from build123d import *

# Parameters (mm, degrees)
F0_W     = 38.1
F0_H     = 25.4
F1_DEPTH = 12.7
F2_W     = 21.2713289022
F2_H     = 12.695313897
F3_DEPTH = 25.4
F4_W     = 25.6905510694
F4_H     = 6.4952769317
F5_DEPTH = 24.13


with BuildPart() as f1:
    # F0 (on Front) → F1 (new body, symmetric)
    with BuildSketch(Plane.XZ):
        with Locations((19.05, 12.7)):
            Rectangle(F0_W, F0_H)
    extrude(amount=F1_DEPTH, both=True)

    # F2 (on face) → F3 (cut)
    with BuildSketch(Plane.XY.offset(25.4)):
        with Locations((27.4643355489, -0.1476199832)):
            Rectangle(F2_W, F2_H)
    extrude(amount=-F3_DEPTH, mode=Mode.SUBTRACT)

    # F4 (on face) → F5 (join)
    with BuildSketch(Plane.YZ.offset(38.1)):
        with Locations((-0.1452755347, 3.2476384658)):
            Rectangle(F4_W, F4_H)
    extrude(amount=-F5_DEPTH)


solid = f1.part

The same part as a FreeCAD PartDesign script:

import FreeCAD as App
import Part
import Sketcher
from FreeCAD import Vector
Q = App.Units.Quantity

doc = App.newDocument("Part")
body = doc.addObject("PartDesign::Body", "Body")

sketch1 = body.newObject("Sketcher::SketchObject", "Sketch")
sketch1.AttachmentSupport = (doc.getObject("XZ_Plane"), [""])
sketch1.MapMode = "FlatFace"
sketch1.addGeometry([
    Part.LineSegment(Vector(0, 25.4, 0), Vector(0, 0, 0)),
    Part.LineSegment(Vector(0, 0, 0), Vector(38.1, 0, 0)),
    Part.LineSegment(Vector(38.1, 0, 0), Vector(38.1, 25.4, 0)),
    Part.LineSegment(Vector(38.1, 25.4, 0), Vector(0, 25.4, 0)),
], False)
sketch1.addConstraint([
    Sketcher.Constraint("Coincident", 0, 2, 1, 1),
    Sketcher.Constraint("Coincident", 1, 2, 2, 1),
    Sketcher.Constraint("Coincident", 2, 2, 3, 1),
    Sketcher.Constraint("Coincident", 3, 2, 0, 1),
    Sketcher.Constraint("Vertical", 0),
    Sketcher.Constraint("Horizontal", 1),
    Sketcher.Constraint("Vertical", 2),
    Sketcher.Constraint("Horizontal", 3),
    Sketcher.Constraint("Coincident", 0, 2, -1, 1),
    Sketcher.Constraint("DistanceY", 0, 2, 0, 1, Q("1 in")),
    Sketcher.Constraint("DistanceX", 1, 1, 1, 2, Q("1.5 in")),
])
pad1 = body.newObject("PartDesign::Pad", "Pad")
pad1.Profile = sketch1
pad1.Length = Q("1 in")
pad1.Midplane = True

sketch2 = body.newObject("Sketcher::SketchObject", "Sketch001")
sketch2.AttachmentSupport = (doc.getObject("XY_Plane"), [""])
sketch2.MapMode = "FlatFace"
sketch2.AttachmentOffset = App.Placement(Vector(0, 0, 1 * 25.4), App.Rotation())
sketch2.addGeometry([
    Part.LineSegment(Vector(16.828671, 6.200037, 0), Vector(16.828671, -6.495277, 0)),
    Part.LineSegment(Vector(16.828671, -6.495277, 0), Vector(38.1, -6.495277, 0)),
    Part.LineSegment(Vector(38.1, -6.495277, 0), Vector(38.1, 6.200037, 0)),
    Part.LineSegment(Vector(38.1, 6.200037, 0), Vector(16.828671, 6.200037, 0)),
], False)
sketch2.addConstraint([
    Sketcher.Constraint("Coincident", 0, 2, 1, 1),
    Sketcher.Constraint("Coincident", 1, 2, 2, 1),
    Sketcher.Constraint("Coincident", 2, 2, 3, 1),
    Sketcher.Constraint("Coincident", 3, 2, 0, 1),
    Sketcher.Constraint("Vertical", 0),
    Sketcher.Constraint("Horizontal", 1),
    Sketcher.Constraint("Vertical", 2),
    Sketcher.Constraint("Horizontal", 3),
    Sketcher.Constraint("DistanceX", -1, 1, 1, 2, Q("1.5 in")),
    Sketcher.Constraint("DistanceX", 1, 1, 1, 2, Q("21.271329 mm")),
    Sketcher.Constraint("DistanceY", 0, 2, 0, 1, Q("12.695314 mm")),
    Sketcher.Constraint("DistanceY", 0, 2, -1, 1, Q("6.495277 mm")),
])
pocket1 = body.newObject("PartDesign::Pocket", "Pocket")
pocket1.Profile = sketch2
pocket1.Length = Q("1 in")

sketch3 = body.newObject("Sketcher::SketchObject", "Sketch002")
sketch3.AttachmentSupport = (doc.getObject("YZ_Plane"), [""])
sketch3.MapMode = "FlatFace"
sketch3.AttachmentOffset = App.Placement(Vector(0, 0, 1.5 * 25.4), App.Rotation())
sketch3.addGeometry([
    Part.LineSegment(Vector(-12.990551, 6.495277, 0), Vector(-12.990551, 0, 0)),
    Part.LineSegment(Vector(-12.990551, 0, 0), Vector(12.7, 0, 0)),
    Part.LineSegment(Vector(12.7, 0, 0), Vector(12.7, 6.495277, 0)),
    Part.LineSegment(Vector(12.7, 6.495277, 0), Vector(-12.990551, 6.495277, 0)),
], False)
sketch3.addConstraint([
    Sketcher.Constraint("Coincident", 0, 2, 1, 1),
    Sketcher.Constraint("Coincident", 1, 2, 2, 1),
    Sketcher.Constraint("Coincident", 2, 2, 3, 1),
    Sketcher.Constraint("Coincident", 3, 2, 0, 1),
    Sketcher.Constraint("Vertical", 0),
    Sketcher.Constraint("Horizontal", 1),
    Sketcher.Constraint("Vertical", 2),
    Sketcher.Constraint("Horizontal", 3),
    Sketcher.Constraint("PointOnObject", 0, 2, -1),
    Sketcher.Constraint("DistanceX", -1, 1, 1, 2, Q("0.5 in")),
    Sketcher.Constraint("DistanceX", 1, 1, 1, 2, Q("25.690551 mm")),
    Sketcher.Constraint("DistanceY", 0, 2, 0, 1, Q("6.495277 mm")),
])
pad2 = body.newObject("PartDesign::Pad", "Pad001")
pad2.Profile = sketch3
pad2.Length = Q("0.95 in")
pad2.Reversed = True

doc.recompute()
